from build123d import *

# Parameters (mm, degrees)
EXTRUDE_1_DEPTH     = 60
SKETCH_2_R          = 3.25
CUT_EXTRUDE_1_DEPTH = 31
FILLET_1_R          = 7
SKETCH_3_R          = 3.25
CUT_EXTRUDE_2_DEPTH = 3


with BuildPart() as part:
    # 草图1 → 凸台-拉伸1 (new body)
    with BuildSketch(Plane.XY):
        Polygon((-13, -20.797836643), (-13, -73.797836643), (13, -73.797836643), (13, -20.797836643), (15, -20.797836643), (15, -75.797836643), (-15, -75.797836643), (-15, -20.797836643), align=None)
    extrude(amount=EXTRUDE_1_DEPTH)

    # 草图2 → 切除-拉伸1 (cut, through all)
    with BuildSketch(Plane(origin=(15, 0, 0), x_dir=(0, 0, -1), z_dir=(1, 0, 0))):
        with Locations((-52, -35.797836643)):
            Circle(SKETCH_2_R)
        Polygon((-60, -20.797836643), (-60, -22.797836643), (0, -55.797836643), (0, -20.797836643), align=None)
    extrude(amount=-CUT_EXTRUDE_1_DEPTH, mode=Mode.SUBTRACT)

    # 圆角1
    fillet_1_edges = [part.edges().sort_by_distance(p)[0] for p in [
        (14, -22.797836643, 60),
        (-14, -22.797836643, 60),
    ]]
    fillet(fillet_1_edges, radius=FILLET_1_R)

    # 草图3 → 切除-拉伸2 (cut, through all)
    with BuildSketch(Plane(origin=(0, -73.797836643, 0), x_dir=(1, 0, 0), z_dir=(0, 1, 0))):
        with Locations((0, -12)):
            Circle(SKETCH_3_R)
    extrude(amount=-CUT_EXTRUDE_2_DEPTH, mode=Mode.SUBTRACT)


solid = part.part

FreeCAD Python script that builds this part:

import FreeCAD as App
import Part
import Sketcher
Q = App.Units.Quantity


def edges_at(feature, points):
    """Names of the edges that pass closest to the given points."""
    edges = feature.Shape.Edges
    near = lambda p: min(range(len(edges)), key=lambda i: edges[i].distToShape(Part.Vertex(*p))[0])
    return sorted({f"Edge{near(p) + 1}" for p in points})


def add_polygon(sketch, points):
    """Adds a closed chain of lines whose ends are joined by coincident constraints."""
    first, n = sketch.GeometryCount, len(points)
    for a, b in zip(points, points[1:] + points[:1]):
        sketch.addGeometry(Part.LineSegment(App.Vector(*a, 0), App.Vector(*b, 0)), False)
    for i in range(n):
        sketch.addConstraint(Sketcher.Constraint("Coincident", first + i, 2, first + (i + 1) % n, 1))

doc = App.newDocument("Part")
body = doc.addObject("PartDesign::Body", "Body")

# Sketch on XY plane
sketch1 = body.newObject("Sketcher::SketchObject", "Sketch")
sketch1.AttachmentSupport = (doc.getObject("XY_Plane"), [""])
sketch1.MapMode = "FlatFace"
add_polygon(sketch1, [(-13, -73.8), (-13, -20.8), (-15, -20.8), (-15, -75.8), (15, -75.8), (15, -20.8), (13, -20.8), (13, -73.8)])  # lines 0-7
sketch1.addConstraint(Sketcher.Constraint("Vertical", 0))
sketch1.addConstraint(Sketcher.Constraint("Horizontal", 1))
sketch1.addConstraint(Sketcher.Constraint("Vertical", 2))
sketch1.addConstraint(Sketcher.Constraint("Horizontal", 3))
sketch1.addConstraint(Sketcher.Constraint("Vertical", 4))
sketch1.addConstraint(Sketcher.Constraint("Horizontal", 5))
sketch1.addConstraint(Sketcher.Constraint("Vertical", 6))
sketch1.addConstraint(Sketcher.Constraint("Horizontal", 7))
sketch1.addConstraint(Sketcher.Constraint("Symmetric", 1, 2, 4, 2, -2))
sketch1.addConstraint(Sketcher.Constraint("Equal", 1, 5))
sketch1.addConstraint(Sketcher.Constraint("DistanceX", 1, 2, 1, 1, Q("2 mm")))
sketch1.addConstraint(Sketcher.Constraint("DistanceX", 3, 1, 3, 2, Q("30 mm")))
sketch1.addConstraint(Sketcher.Constraint("DistanceY", 0, 1, 0, 2, Q("53 mm")))
sketch1.addConstraint(Sketcher.Constraint("DistanceY", 2, 2, 2, 1, Q("55 mm")))
sketch1.addConstraint(Sketcher.Constraint("DistanceY", 0, 2, -1, 1, Q("20.797837 mm")))
pad1 = body.newObject("PartDesign::Pad", "Pad")
pad1.Profile = sketch1
pad1.Length = 60

# Sketch on YZ plane
sketch2 = body.newObject("Sketcher::SketchObject", "Sketch001")
sketch2.AttachmentSupport = (doc.getObject("YZ_Plane"), [""])
sketch2.MapMode = "FlatFace"
sketch2.AttachmentOffset = App.Placement(App.Vector(0, 0, 15), App.Rotation())
sketch2.addGeometry(Part.Circle(App.Vector(-35.8, 52, 0), App.Vector(0, 0, 1), 3.2), False)  # 0
add_polygon(sketch2, [(-20.8, 60), (-22.8, 60), (-55.8, 0), (-20.8, 0)])  # lines 1-4
sketch2.addConstraint(Sketcher.Constraint("Horizontal", 1))
sketch2.addConstraint(Sketcher.Constraint("Horizontal", 3))
sketch2.addConstraint(Sketcher.Constraint("Vertical", 4))
sketch2.addConstraint(Sketcher.Constraint("PointOnObject", 2, 2, -1))
sketch2.addConstraint(Sketcher.Constraint("Diameter", 0, Q("6.5 mm")))
sketch2.addConstraint(Sketcher.Constraint("DistanceX", 1, 2, 1, 1, Q("2 mm")))
sketch2.addConstraint(Sketcher.Constraint("DistanceX", 3, 1, 3, 2, Q("35 mm")))
sketch2.addConstraint(Sketcher.Constraint("DistanceY", 4, 1, 4, 2, Q("60 mm")))
sketch2.addConstraint(Sketcher.Constraint("DistanceY", -1, 1, 0, 3, Q("52 mm")))
sketch2.addConstraint(Sketcher.Constraint("DistanceX", 0, 3, 1, 2, Q("13 mm")))
sketch2.addConstraint(Sketcher.Constraint("DistanceX", 0, 3, -1, 1, Q("35.797837 mm")))
pocket1 = body.newObject("PartDesign::Pocket", "Pocket")
pocket1.Profile = sketch2
pocket1.Type = "ThroughAll"
doc.recompute()

fillet = body.newObject("PartDesign::Fillet", "Fillet")
fillet.Base = (pocket1, edges_at(pocket1, [(14, -22.798, 60), (-14, -22.798, 60)]))
fillet.Radius = 7

# Sketch on XZ plane
sketch3 = body.newObject("Sketcher::SketchObject", "Sketch002")
sketch3.AttachmentSupport = (doc.getObject("XZ_Plane"), [""])
sketch3.MapMode = "FlatFace"
sketch3.AttachmentOffset = App.Placement(App.Vector(0, 0, 73.797837), App.Rotation())
sketch3.addGeometry(Part.Circle(App.Vector(0, 12, 0), App.Vector(0, 0, 1), 3.2), False)
sketch3.addConstraint(Sketcher.Constraint("PointOnObject", 0, 3, -2))
sketch3.addConstraint(Sketcher.Constraint("Diameter", 0, Q("6.5 mm")))
sketch3.addConstraint(Sketcher.Constraint("DistanceY", -1, 1, 0, 3, Q("12 mm")))
pocket2 = body.newObject("PartDesign::Pocket", "Pocket001")
pocket2.Profile = sketch3
pocket2.Type = "ThroughAll"
pocket2.Reversed = True

doc.recompute()
